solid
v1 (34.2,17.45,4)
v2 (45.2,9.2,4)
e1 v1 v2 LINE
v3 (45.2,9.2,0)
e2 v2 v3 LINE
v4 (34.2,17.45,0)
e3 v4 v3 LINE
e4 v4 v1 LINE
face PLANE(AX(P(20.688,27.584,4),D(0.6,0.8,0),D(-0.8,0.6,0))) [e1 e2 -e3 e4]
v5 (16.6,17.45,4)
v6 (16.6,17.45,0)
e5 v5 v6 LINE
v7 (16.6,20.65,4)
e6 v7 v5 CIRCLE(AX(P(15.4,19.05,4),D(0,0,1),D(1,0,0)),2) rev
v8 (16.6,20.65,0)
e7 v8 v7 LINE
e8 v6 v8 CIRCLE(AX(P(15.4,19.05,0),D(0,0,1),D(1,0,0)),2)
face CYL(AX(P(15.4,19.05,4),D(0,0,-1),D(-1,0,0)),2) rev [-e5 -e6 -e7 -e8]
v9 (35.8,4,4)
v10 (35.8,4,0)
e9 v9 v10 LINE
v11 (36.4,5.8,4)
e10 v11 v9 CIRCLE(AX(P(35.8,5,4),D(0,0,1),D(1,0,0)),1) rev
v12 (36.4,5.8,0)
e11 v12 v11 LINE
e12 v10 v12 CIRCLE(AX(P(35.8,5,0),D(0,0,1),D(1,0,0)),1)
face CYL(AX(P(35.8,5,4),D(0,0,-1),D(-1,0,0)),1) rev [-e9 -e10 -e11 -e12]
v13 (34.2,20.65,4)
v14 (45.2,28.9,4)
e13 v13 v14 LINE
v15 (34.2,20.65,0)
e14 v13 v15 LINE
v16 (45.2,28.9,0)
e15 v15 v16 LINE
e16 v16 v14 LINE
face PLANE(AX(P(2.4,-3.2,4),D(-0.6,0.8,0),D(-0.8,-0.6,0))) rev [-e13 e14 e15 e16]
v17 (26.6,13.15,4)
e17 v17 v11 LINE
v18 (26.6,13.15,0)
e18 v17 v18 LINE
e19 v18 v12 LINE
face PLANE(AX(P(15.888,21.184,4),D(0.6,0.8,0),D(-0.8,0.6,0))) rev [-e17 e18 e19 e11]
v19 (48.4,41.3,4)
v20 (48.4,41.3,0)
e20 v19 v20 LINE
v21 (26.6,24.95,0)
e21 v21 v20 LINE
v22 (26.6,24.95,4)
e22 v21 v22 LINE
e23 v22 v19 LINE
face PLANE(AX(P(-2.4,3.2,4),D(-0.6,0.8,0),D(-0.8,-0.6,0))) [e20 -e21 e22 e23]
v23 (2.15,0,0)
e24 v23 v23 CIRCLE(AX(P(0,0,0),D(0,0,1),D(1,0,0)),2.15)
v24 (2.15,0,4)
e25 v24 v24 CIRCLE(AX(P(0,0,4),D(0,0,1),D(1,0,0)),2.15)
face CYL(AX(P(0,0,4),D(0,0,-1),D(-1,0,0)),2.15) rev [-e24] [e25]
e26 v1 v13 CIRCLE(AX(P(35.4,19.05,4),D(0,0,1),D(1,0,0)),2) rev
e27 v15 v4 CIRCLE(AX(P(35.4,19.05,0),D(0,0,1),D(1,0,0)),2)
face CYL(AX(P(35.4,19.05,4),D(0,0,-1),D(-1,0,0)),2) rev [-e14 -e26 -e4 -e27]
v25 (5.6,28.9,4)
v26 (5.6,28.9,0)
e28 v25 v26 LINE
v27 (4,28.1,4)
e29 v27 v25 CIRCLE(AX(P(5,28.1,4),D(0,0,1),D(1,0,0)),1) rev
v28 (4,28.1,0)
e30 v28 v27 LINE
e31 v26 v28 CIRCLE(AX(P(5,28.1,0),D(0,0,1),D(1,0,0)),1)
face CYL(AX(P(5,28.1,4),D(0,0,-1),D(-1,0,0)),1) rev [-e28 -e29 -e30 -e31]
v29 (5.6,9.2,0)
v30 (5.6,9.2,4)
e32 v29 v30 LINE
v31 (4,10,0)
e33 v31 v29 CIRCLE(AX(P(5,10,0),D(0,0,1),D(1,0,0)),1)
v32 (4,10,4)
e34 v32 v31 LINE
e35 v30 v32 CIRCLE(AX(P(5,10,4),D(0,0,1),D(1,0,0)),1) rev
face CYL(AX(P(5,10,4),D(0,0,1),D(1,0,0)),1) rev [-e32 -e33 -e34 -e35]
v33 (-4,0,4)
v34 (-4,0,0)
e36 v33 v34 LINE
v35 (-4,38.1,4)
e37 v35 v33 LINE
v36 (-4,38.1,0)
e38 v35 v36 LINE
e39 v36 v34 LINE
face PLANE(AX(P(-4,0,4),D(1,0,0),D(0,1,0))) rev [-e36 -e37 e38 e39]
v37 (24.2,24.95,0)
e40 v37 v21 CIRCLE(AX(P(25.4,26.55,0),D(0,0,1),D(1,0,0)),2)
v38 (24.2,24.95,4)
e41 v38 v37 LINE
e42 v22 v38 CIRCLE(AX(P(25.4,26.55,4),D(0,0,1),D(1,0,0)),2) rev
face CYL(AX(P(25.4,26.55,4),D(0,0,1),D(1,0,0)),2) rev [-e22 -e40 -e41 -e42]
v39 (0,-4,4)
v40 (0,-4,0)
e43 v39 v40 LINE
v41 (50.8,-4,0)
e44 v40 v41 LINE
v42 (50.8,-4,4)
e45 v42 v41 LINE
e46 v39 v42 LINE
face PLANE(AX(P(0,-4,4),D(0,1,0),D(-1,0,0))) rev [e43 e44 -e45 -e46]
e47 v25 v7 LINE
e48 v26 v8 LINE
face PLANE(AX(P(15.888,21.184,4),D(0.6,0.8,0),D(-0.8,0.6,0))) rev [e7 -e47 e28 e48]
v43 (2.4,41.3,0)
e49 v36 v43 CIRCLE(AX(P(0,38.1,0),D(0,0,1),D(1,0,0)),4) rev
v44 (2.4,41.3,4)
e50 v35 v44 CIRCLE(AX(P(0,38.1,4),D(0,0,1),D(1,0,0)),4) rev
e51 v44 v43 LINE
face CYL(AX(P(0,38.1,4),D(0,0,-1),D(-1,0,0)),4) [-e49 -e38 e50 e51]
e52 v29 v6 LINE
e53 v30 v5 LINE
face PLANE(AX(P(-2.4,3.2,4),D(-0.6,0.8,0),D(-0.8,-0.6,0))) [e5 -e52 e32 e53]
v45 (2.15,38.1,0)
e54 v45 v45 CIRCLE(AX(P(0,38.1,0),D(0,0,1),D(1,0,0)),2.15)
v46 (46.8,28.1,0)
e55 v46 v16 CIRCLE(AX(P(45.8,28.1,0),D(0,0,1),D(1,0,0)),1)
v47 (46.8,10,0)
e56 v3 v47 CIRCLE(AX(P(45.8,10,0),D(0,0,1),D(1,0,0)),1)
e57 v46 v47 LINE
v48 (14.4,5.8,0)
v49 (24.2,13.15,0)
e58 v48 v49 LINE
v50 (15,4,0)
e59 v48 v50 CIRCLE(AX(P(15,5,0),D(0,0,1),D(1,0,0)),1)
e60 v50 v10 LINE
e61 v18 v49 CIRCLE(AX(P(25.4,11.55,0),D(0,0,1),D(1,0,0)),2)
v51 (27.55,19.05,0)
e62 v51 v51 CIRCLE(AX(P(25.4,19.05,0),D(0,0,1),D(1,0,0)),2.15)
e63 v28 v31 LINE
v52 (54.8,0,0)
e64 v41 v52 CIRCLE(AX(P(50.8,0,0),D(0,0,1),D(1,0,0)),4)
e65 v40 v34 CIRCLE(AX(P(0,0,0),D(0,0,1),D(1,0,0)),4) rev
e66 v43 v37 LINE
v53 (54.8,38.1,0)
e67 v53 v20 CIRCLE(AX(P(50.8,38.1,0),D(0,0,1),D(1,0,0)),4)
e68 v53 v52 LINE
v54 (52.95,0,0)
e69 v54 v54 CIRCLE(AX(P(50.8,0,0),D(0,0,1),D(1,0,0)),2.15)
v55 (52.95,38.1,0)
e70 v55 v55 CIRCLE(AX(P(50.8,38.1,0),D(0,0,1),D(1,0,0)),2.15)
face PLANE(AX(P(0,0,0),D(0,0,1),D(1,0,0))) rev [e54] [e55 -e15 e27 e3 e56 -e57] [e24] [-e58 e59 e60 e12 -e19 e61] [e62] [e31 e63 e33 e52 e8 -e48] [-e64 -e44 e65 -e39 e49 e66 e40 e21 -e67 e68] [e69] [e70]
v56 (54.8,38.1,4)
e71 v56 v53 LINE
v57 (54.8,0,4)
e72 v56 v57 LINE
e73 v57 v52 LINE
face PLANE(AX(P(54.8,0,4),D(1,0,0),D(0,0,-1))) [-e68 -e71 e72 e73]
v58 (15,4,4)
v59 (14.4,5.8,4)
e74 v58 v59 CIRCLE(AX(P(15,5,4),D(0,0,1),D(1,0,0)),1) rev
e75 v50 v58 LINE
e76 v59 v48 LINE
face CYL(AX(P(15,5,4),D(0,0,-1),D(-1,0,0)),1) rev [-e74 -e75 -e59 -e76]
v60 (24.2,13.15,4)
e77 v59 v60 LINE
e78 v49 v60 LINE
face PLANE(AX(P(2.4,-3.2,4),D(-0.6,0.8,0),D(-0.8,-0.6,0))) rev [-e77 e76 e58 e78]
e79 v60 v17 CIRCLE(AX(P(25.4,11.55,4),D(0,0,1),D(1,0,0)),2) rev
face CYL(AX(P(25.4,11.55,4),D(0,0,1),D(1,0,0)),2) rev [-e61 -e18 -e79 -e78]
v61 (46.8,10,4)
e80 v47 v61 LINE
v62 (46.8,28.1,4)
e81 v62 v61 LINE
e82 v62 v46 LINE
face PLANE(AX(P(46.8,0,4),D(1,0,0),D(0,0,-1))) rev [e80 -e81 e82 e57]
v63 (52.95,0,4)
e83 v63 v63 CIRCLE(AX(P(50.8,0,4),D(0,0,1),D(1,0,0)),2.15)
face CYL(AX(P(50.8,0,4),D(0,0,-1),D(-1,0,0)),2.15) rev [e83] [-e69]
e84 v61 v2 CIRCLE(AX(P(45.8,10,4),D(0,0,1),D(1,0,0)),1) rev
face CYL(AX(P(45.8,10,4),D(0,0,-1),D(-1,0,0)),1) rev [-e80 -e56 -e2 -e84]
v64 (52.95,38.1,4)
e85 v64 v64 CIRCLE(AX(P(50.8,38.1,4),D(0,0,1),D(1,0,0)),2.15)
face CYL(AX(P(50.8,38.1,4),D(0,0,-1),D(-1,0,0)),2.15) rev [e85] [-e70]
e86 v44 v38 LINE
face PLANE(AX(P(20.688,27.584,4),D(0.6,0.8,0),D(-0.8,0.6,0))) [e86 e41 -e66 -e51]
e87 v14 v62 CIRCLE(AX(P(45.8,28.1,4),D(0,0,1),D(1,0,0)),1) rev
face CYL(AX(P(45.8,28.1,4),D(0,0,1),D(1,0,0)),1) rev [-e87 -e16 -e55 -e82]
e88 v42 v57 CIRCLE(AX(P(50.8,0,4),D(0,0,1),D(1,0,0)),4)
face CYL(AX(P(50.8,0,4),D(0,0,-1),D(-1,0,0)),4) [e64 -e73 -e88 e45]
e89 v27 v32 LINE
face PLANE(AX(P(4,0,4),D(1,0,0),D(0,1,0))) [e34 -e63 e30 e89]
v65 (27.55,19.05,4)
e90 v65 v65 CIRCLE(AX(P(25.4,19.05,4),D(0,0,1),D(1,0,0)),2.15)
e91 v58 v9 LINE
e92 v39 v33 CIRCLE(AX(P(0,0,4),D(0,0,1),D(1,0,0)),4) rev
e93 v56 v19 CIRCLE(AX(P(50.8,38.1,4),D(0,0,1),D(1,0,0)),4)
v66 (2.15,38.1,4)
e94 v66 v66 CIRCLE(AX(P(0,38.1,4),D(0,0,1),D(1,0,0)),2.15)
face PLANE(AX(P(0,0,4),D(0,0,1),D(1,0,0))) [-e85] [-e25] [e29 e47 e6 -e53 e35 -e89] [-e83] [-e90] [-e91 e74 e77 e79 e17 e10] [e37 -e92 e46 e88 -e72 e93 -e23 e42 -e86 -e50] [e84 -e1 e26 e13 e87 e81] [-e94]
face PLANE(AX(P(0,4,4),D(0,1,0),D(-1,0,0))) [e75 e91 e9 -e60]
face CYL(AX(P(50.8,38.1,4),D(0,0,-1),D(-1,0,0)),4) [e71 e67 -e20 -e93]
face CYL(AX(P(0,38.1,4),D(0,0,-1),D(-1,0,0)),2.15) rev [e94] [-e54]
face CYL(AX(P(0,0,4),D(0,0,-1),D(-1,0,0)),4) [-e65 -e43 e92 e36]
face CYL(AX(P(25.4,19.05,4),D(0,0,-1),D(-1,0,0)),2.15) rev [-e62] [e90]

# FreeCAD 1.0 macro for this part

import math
import FreeCAD as App
import Part
import Sketcher

V = App.Vector
Q = App.Units.Quantity


def edges_at(feature, points):
    """Names of the edges that pass closest to the given points."""
    edges = feature.Shape.Edges
    near = lambda p: min(range(len(edges)), key=lambda i: edges[i].distToShape(Part.Vertex(*p))[0])
    return sorted({f"Edge{near(p) + 1}" for p in points})


def add_polygon(sketch, points):
    """Adds a closed chain of lines whose ends are joined by coincident constraints."""
    first, n = sketch.GeometryCount, len(points)
    for a, b in zip(points, points[1:] + points[:1]):
        sketch.addGeometry(Part.LineSegment(App.Vector(*a, 0), App.Vector(*b, 0)), False)
    for i in range(n):
        sketch.addConstraint(Sketcher.Constraint("Coincident", first + i, 2, first + (i + 1) % n, 1))

doc = App.newDocument("Part")
body = doc.addObject("PartDesign::Body", "Body")

# Sketch on XY plane
sketch1 = body.newObject("Sketcher::SketchObject", "Sketch")
sketch1.AttachmentSupport = (doc.getObject("XY_Plane"), [""])
sketch1.MapMode = "FlatFace"
sketch1.addGeometry(Part.LineSegment(V(0, -4, 0), V(50.8, -4, 0)), False)  # 0
sketch1.addGeometry(Part.ArcOfCircle(Part.Circle(V(50.8, 0, 0), V(0, 0, 1), 4), math.radians(-90), math.radians(0.000001)), False)  # 1
sketch1.addGeometry(Part.LineSegment(V(54.8, 0, 0), V(54.8, 38.1, 0)), False)  # 2
sketch1.addGeometry(Part.ArcOfCircle(Part.Circle(V(50.8, 38.1, 0), V(0, 0, 1), 4), math.radians(0), math.radians(126.869898)), False)  # 3
sketch1.addGeometry(Part.LineSegment(V(48.4, 41.3, 0), V(25.4, 24.05, 0)), False)  # 4
sketch1.addGeometry(Part.LineSegment(V(25.4, 24.05, 0), V(2.4, 41.3, 0)), False)  # 5
sketch1.addGeometry(Part.ArcOfCircle(Part.Circle(V(0, 38.1, 0), V(0, 0, 1), 4), math.radians(53.130102), math.radians(180)), False)  # 6
sketch1.addGeometry(Part.LineSegment(V(-4, 38.1, 0), V(-4, 0, 0)), False)  # 7
sketch1.addGeometry(Part.ArcOfCircle(Part.Circle(V(0, 0, 0), V(0, 0, 1), 4), math.radians(180), math.radians(270)), False)  # 8
sketch1.addGeometry(Part.Circle(V(0, 0, 0), V(0, 0, 1), 2.15), False)  # 9
sketch1.addGeometry(Part.Circle(V(50.8, 0, 0), V(0, 0, 1), 2.15), False)  # 10
add_polygon(sketch1, [(12, 4), (25.4, 14.05), (38.8, 4)])  # lines 11-13
add_polygon(sketch1, [(18.733333, 19.05), (4, 8), (4, 30.1)])  # lines 14-16
sketch1.addGeometry(Part.Circle(V(0, 38.1, 0), V(0, 0, 1), 2.15), False)  # 17
sketch1.addGeometry(Part.Circle(V(25.4, 19.05, 0), V(0, 0, 1), 2.15), False)  # 18
add_polygon(sketch1, [(46.8, 30.1), (46.8, 8), (32.066667, 19.05)])  # lines 19-21
sketch1.addGeometry(Part.Circle(V(50.8, 38.1, 0), V(0, 0, 1), 2.15), False)  # 22
sketch1.addConstraint([
    Sketcher.Constraint("Tangent", 0, 2, 1, 1),
    Sketcher.Constraint("Tangent", 1, 2, 2, 1),
    Sketcher.Constraint("Tangent", 2, 2, 3, 1),
    Sketcher.Constraint("Tangent", 3, 2, 4, 1),
    Sketcher.Constraint("Coincident", 4, 2, 5, 1),
    Sketcher.Constraint("Tangent", 5, 2, 6, 1),
    Sketcher.Constraint("Tangent", 6, 2, 7, 1),
    Sketcher.Constraint("Tangent", 7, 2, 8, 1),
    Sketcher.Constraint("Tangent", 8, 2, 0, 1),
    Sketcher.Constraint("Horizontal", 0),
    Sketcher.Constraint("Vertical", 2),
    Sketcher.Constraint("Vertical", 7),
    Sketcher.Constraint("Horizontal", 13),
    Sketcher.Constraint("Vertical", 15),
    Sketcher.Constraint("Vertical", 19),
    Sketcher.Constraint("Coincident", 8, 3, -1, 1),
    Sketcher.Constraint("Coincident", 9, 3, -1, 1),
    Sketcher.Constraint("Coincident", 10, 3, 1, 3),
    Sketcher.Constraint("Coincident", 17, 3, 6, 3),
    Sketcher.Constraint("Coincident", 22, 3, 3, 3),
    Sketcher.Constraint("Equal", 1, 3),
    Sketcher.Constraint("Equal", 3, 6),
    Sketcher.Constraint("Equal", 6, 8),
    Sketcher.Constraint("Equal", 9, 10),
    Sketcher.Constraint("Equal", 10, 17),
    Sketcher.Constraint("Equal", 17, 18),
    Sketcher.Constraint("Equal", 18, 22),
    Sketcher.Constraint("Parallel", 4, 11),
    Sketcher.Constraint("Parallel", 5, 12),
    Sketcher.Constraint("Parallel", 11, 14),
    Sketcher.Constraint("Parallel", 12, 16),
    Sketcher.Constraint("Parallel", 16, 20),
    Sketcher.Constraint("Parallel", 14, 21),
    Sketcher.Constraint("Horizontal", 3, 3, 6, 3),
    Sketcher.Constraint("Horizontal", 3, 2, 5, 2),
    Sketcher.Constraint("Horizontal", 18, 3, 16, 2),
    Sketcher.Constraint("Horizontal", 14, 2, 19, 2),
    Sketcher.Constraint("Horizontal", 16, 2, 20, 2),
    Sketcher.Constraint("Vertical", 18, 3, 4, 2),
    Sketcher.Constraint("Vertical", 4, 2, 11, 2),
    Sketcher.Constraint("Radius", 1, Q("4 mm")),
    Sketcher.Constraint("Diameter", 9, Q("4.3 mm")),
    Sketcher.Constraint("DistanceX", 0, 1, 0, 2, Q("50.8 mm")),
    Sketcher.Constraint("DistanceX", 13, 2, 13, 1, Q("26.8 mm")),
    Sketcher.Constraint("DistanceY", 2, 1, 2, 2, Q("38.1 mm")),
    Sketcher.Constraint("DistanceY", 15, 1, 15, 2, Q("22.1 mm")),
    Sketcher.Constraint("DistanceY", -1, 1, 12, 2, Q("4 mm")),
    Sketcher.Constraint("DistanceX", -1, 1, 14, 2, Q("4 mm")),
    Sketcher.Constraint("DistanceY", -1, 1, 14, 2, Q("8 mm")),
    Sketcher.Constraint("DistanceX", 18, 3, 3, 2, Q("23 mm")),
    Sketcher.Constraint("DistanceX", 19, 2, 10, 3, Q("4 mm")),
])
pad1 = body.newObject("PartDesign::Pad", "Pad")
pad1.Profile = sketch1
pad1.Length = 4
doc.recompute()

fillet = body.newObject("PartDesign::Fillet", "Fillet")
fillet.Base = (pad1, edges_at(pad1, [
    (18.733, 19.05, 2),
    (25.4, 14.05, 2),
    (32.067, 19.05, 2),
    (25.4, 24.05, 2),
]))
fillet.Radius = 2
doc.recompute()

fillet2 = body.newObject("PartDesign::Fillet", "Fillet001")
fillet2.Base = (fillet, edges_at(fillet, [
    (4, 30.1, 2),
    (4, 8, 2),
    (12, 4, 2),
    (38.8, 4, 2),
    (46.8, 30.1, 2),
    (46.8, 8, 2),
]))
fillet2.Radius = 1

doc.recompute()
